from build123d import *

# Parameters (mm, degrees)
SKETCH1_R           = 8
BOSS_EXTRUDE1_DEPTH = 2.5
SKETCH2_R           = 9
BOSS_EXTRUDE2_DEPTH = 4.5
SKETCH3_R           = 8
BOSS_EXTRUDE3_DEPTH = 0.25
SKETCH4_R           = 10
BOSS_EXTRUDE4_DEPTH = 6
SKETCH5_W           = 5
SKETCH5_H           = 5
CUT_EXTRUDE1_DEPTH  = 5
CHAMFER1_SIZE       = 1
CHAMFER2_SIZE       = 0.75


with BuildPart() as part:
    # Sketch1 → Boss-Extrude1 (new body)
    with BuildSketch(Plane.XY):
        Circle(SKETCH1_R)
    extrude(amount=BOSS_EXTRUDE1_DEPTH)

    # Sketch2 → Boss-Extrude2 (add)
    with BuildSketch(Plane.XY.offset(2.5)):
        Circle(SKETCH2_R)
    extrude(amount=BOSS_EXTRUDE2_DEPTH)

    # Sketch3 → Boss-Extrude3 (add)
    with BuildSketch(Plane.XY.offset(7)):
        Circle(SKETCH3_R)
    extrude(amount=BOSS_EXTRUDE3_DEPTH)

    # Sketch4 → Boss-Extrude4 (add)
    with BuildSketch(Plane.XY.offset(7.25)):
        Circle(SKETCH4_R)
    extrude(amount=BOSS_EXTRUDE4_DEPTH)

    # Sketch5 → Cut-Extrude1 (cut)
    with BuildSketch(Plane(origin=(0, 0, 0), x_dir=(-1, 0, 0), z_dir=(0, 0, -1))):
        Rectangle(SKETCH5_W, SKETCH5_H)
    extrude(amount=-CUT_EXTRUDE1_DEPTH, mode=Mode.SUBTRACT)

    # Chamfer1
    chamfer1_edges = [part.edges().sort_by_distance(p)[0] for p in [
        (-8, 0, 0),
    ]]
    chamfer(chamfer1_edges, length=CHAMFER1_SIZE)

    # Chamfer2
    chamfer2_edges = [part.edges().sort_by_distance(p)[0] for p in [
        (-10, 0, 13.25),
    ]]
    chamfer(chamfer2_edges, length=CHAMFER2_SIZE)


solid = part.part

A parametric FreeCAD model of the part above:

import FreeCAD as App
import Part
import Sketcher
Q = App.Units.Quantity


def edges_at(feature, points):
    """Names of the edges that pass closest to the given points."""
    edges = feature.Shape.Edges
    near = lambda p: min(range(len(edges)), key=lambda i: edges[i].distToShape(Part.Vertex(*p))[0])
    return sorted({f"Edge{near(p) + 1}" for p in points})

doc = App.newDocument("Part")
params = doc.addObject("Spreadsheet::Sheet", "Params")
for row, (alias, value) in enumerate([
    ("sketch1_diameter", "16 mm"),
    ("pad1_length", "2.5 mm"),
    ("sketch2_diameter", "18 mm"),
    ("pad2_length", "4.5 mm"),
    ("sketch3_diameter", "16 mm"),
    ("pad3_length", "0.25 mm"),
    ("sketch4_diameter", "20 mm"),
    ("pad4_length", "6 mm"),
    ("sketch5_width", "5 mm"),
    ("pocket1_length", "5 mm"),
    ("chamfer_size", "1 mm"),
    ("chamfer2_size", "0.75 mm"),
], start=1):
    params.set(f"A{row}", alias)
    params.set(f"B{row}", "=" + value)
    params.setAlias(f"B{row}", alias)

body = doc.addObject("PartDesign::Body", "Body")

# Sketch on XY plane
sketch1 = doc.addObject("Sketcher::SketchObject", "Sketch")
body.addObject(sketch1)
sketch1.AttachmentSupport = (doc.XY_Plane, [""])
sketch1.MapMode = "FlatFace"
sketch1.addGeometry(Part.Circle(App.Vector(0, 0, 0), App.Vector(0, 0, 1), 8), False)
sketch1.addConstraint(Sketcher.Constraint("Coincident", 0, 3, -1, 1))
sketch1.addConstraint(Sketcher.Constraint("Diameter", 0, Q("16 mm")))
sketch1.setExpression("Constraints[1]", "Params.sketch1_diameter")
pad1 = doc.addObject("PartDesign::Pad", "Pad")
body.addObject(pad1)
pad1.Profile = sketch1
pad1.setExpression("Length", "Params.pad1_length")

# Sketch on XY plane
sketch2 = doc.addObject("Sketcher::SketchObject", "Sketch001")
body.addObject(sketch2)
sketch2.AttachmentSupport = (doc.XY_Plane, [""])
sketch2.MapMode = "FlatFace"
sketch2.AttachmentOffset = App.Placement(App.Vector(0, 0, 2.5), App.Rotation())
sketch2.addGeometry(Part.Circle(App.Vector(0, 0, 0), App.Vector(0, 0, 1), 9), False)
sketch2.addConstraint(Sketcher.Constraint("Coincident", 0, 3, -1, 1))
sketch2.addConstraint(Sketcher.Constraint("Diameter", 0, Q("18 mm")))
sketch2.setExpression("Constraints[1]", "Params.sketch2_diameter")
pad2 = doc.addObject("PartDesign::Pad", "Pad001")
body.addObject(pad2)
pad2.Profile = sketch2
pad2.setExpression("Length", "Params.pad2_length")

# Sketch on XY plane
sketch3 = doc.addObject("Sketcher::SketchObject", "Sketch002")
body.addObject(sketch3)
sketch3.AttachmentSupport = (doc.XY_Plane, [""])
sketch3.MapMode = "FlatFace"
sketch3.AttachmentOffset = App.Placement(App.Vector(0, 0, 7), App.Rotation())
sketch3.addGeometry(Part.Circle(App.Vector(0, 0, 0), App.Vector(0, 0, 1), 8), False)
sketch3.addConstraint(Sketcher.Constraint("Coincident", 0, 3, -1, 1))
sketch3.addConstraint(Sketcher.Constraint("Diameter", 0, Q("16 mm")))
sketch3.setExpression("Constraints[1]", "Params.sketch3_diameter")
pad3 = doc.addObject("PartDesign::Pad", "Pad002")
body.addObject(pad3)
pad3.Profile = sketch3
pad3.setExpression("Length", "Params.pad3_length")

# Sketch on XY plane
sketch4 = doc.addObject("Sketcher::SketchObject", "Sketch003")
body.addObject(sketch4)
sketch4.AttachmentSupport = (doc.XY_Plane, [""])
sketch4.MapMode = "FlatFace"
sketch4.AttachmentOffset = App.Placement(App.Vector(0, 0, 7.25), App.Rotation())
sketch4.addGeometry(Part.Circle(App.Vector(0, 0, 0), App.Vector(0, 0, 1), 10), False)
sketch4.addConstraint(Sketcher.Constraint("Coincident", 0, 3, -1, 1))
sketch4.addConstraint(Sketcher.Constraint("Diameter", 0, Q("20 mm")))
sketch4.setExpression("Constraints[1]", "Params.sketch4_diameter")
pad4 = doc.addObject("PartDesign::Pad", "Pad003")
body.addObject(pad4)
pad4.Profile = sketch4
pad4.setExpression("Length", "Params.pad4_length")

# Sketch on XY plane
sketch5 = doc.addObject("Sketcher::SketchObject", "Sketch004")
body.addObject(sketch5)
sketch5.AttachmentSupport = (doc.XY_Plane, [""])
sketch5.MapMode = "FlatFace"
sketch5.addGeometry(Part.LineSegment(App.Vector(2, 2, 0), App.Vector(2, -2, 0)), False)
sketch5.addGeometry(Part.LineSegment(App.Vector(2, -2, 0), App.Vector(-2, -2, 0)), False)
sketch5.addGeometry(Part.LineSegment(App.Vector(-2, -2, 0), App.Vector(-2, 2, 0)), False)
sketch5.addGeometry(Part.LineSegment(App.Vector(-2, 2, 0), App.Vector(2, 2, 0)), False)
sketch5.addConstraint(Sketcher.Constraint("Coincident", 0, 2, 1, 1))
sketch5.addConstraint(Sketcher.Constraint("Coincident", 1, 2, 2, 1))
sketch5.addConstraint(Sketcher.Constraint("Coincident", 2, 2, 3, 1))
sketch5.addConstraint(Sketcher.Constraint("Coincident", 3, 2, 0, 1))
sketch5.addConstraint(Sketcher.Constraint("Vertical", 0))
sketch5.addConstraint(Sketcher.Constraint("Horizontal", 1))
sketch5.addConstraint(Sketcher.Constraint("Vertical", 2))
sketch5.addConstraint(Sketcher.Constraint("Horizontal", 3))
sketch5.addConstraint(Sketcher.Constraint("Symmetric", 0, 2, 2, 2, -1, 1))
sketch5.addConstraint(Sketcher.Constraint("Equal", 3, 0))
sketch5.addConstraint(Sketcher.Constraint("DistanceX", 1, 2, 1, 1, Q("5 mm")))
sketch5.setExpression("Constraints[10]", "Params.sketch5_width")
pocket1 = doc.addObject("PartDesign::Pocket", "Pocket")
body.addObject(pocket1)
pocket1.Profile = sketch5
pocket1.setExpression("Length", "Params.pocket1_length")
pocket1.Reversed = True
doc.recompute()

chamfer = doc.addObject("PartDesign::Chamfer", "Chamfer")
body.addObject(chamfer)
chamfer.Base = (pocket1, edges_at(pocket1, [(-8, 0, 0)]))
chamfer.setExpression("Size", "Params.chamfer_size")
doc.recompute()

chamfer2 = doc.addObject("PartDesign::Chamfer", "Chamfer001")
body.addObject(chamfer2)
chamfer2.Base = (chamfer, edges_at(chamfer, [(-10, 0, 13.25)]))
chamfer2.setExpression("Size", "Params.chamfer2_size")

doc.recompute()
